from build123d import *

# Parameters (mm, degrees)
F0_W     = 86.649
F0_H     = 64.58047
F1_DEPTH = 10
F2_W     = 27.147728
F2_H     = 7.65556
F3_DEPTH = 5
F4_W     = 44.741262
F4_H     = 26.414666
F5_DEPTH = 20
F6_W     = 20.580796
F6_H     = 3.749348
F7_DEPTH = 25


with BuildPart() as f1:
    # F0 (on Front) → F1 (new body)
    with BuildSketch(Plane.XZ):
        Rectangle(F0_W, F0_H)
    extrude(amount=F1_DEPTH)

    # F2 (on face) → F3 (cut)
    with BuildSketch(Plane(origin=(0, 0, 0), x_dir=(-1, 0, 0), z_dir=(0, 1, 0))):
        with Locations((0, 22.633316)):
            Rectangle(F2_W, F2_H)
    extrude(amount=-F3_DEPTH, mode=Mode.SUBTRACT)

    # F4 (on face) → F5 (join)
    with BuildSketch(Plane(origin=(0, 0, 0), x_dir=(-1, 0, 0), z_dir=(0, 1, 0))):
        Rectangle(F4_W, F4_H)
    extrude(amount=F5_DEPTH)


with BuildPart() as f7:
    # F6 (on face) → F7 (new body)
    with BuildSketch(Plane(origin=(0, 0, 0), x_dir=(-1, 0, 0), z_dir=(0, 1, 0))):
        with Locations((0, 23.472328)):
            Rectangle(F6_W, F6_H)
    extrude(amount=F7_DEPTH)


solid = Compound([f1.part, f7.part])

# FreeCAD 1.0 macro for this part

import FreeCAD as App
import Part
import Sketcher
Q = App.Units.Quantity

doc = App.newDocument("Part")
body = doc.addObject("PartDesign::Body", "Body")

# Sketch on XZ plane
sketch1 = body.newObject("Sketcher::SketchObject", "Sketch")
sketch1.AttachmentSupport = (doc.getObject("XZ_Plane"), [""])
sketch1.MapMode = "FlatFace"
sketch1.addGeometry([
    Part.LineSegment(App.Vector(-43, 32, 0), App.Vector(-43, -32, 0)),
    Part.LineSegment(App.Vector(-43, -32, 0), App.Vector(43, -32, 0)),
    Part.LineSegment(App.Vector(43, -32, 0), App.Vector(43, 32, 0)),
    Part.LineSegment(App.Vector(43, 32, 0), App.Vector(-43, 32, 0)),
], False)
sketch1.addConstraint([
    Sketcher.Constraint("Coincident", 0, 2, 1, 1),
    Sketcher.Constraint("Coincident", 1, 2, 2, 1),
    Sketcher.Constraint("Coincident", 2, 2, 3, 1),
    Sketcher.Constraint("Coincident", 3, 2, 0, 1),
    Sketcher.Constraint("Vertical", 0),
    Sketcher.Constraint("Horizontal", 1),
    Sketcher.Constraint("Vertical", 2),
    Sketcher.Constraint("Horizontal", 3),
    Sketcher.Constraint("Symmetric", 0, 2, 2, 2, -1, 1),
    Sketcher.Constraint("DistanceX", 1, 1, 1, 2, Q("86.649 mm")),
    Sketcher.Constraint("DistanceY", 0, 2, 0, 1, Q("64.58047 mm")),
])
pad1 = body.newObject("PartDesign::Pad", "Pad")
pad1.Profile = sketch1
pad1.Length = 10

# Sketch on XZ plane
sketch2 = body.newObject("Sketcher::SketchObject", "Sketch001")
sketch2.AttachmentSupport = (doc.getObject("XZ_Plane"), [""])
sketch2.MapMode = "FlatFace"
sketch2.addGeometry([
    Part.LineSegment(App.Vector(14, 26, 0), App.Vector(14, 19, 0)),
    Part.LineSegment(App.Vector(14, 19, 0), App.Vector(-14, 19, 0)),
    Part.LineSegment(App.Vector(-14, 19, 0), App.Vector(-14, 26, 0)),
    Part.LineSegment(App.Vector(-14, 26, 0), App.Vector(14, 26, 0)),
], False)
sketch2.addConstraint([
    Sketcher.Constraint("Coincident", 0, 2, 1, 1),
    Sketcher.Constraint("Coincident", 1, 2, 2, 1),
    Sketcher.Constraint("Coincident", 2, 2, 3, 1),
    Sketcher.Constraint("Coincident", 3, 2, 0, 1),
    Sketcher.Constraint("Vertical", 0),
    Sketcher.Constraint("Horizontal", 1),
    Sketcher.Constraint("Vertical", 2),
    Sketcher.Constraint("Horizontal", 3),
    Sketcher.Constraint("DistanceX", 1, 2, 1, 1, Q("27.147728 mm")),
    Sketcher.Constraint("DistanceY", 0, 2, 0, 1, Q("7.65556 mm")),
    Sketcher.Constraint("DistanceX", -1, 1, 0, 2, Q("13.573864 mm")),
    Sketcher.Constraint("DistanceY", -1, 1, 0, 2, Q("18.805536 mm")),
])
pocket1 = body.newObject("PartDesign::Pocket", "Pocket")
pocket1.Profile = sketch2
pocket1.Length = 5
pocket1.Reversed = True

# Sketch on XZ plane
sketch3 = body.newObject("Sketcher::SketchObject", "Sketch002")
sketch3.AttachmentSupport = (doc.getObject("XZ_Plane"), [""])
sketch3.MapMode = "FlatFace"
sketch3.addGeometry([
    Part.LineSegment(App.Vector(22, 13, 0), App.Vector(22, -13, 0)),
    Part.LineSegment(App.Vector(22, -13, 0), App.Vector(-22, -13, 0)),
    Part.LineSegment(App.Vector(-22, -13, 0), App.Vector(-22, 13, 0)),
    Part.LineSegment(App.Vector(-22, 13, 0), App.Vector(22, 13, 0)),
], False)
sketch3.addConstraint([
    Sketcher.Constraint("Coincident", 0, 2, 1, 1),
    Sketcher.Constraint("Coincident", 1, 2, 2, 1),
    Sketcher.Constraint("Coincident", 2, 2, 3, 1),
    Sketcher.Constraint("Coincident", 3, 2, 0, 1),
    Sketcher.Constraint("Vertical", 0),
    Sketcher.Constraint("Horizontal", 1),
    Sketcher.Constraint("Vertical", 2),
    Sketcher.Constraint("Horizontal", 3),
    Sketcher.Constraint("Symmetric", 0, 2, 2, 2, -1, 1),
    Sketcher.Constraint("DistanceX", 1, 2, 1, 1, Q("44.741262 mm")),
    Sketcher.Constraint("DistanceY", 0, 2, 0, 1, Q("26.414666 mm")),
])
pad2 = body.newObject("PartDesign::Pad", "Pad001")
pad2.Profile = sketch3
pad2.Length = 20
pad2.Reversed = True
body2 = doc.addObject("PartDesign::Body", "Body001")

# Sketch on XZ plane
sketch4 = body2.newObject("Sketcher::SketchObject", "Sketch003")
sketch4.AttachmentSupport = (doc.getObject("XZ_Plane001"), [""])
sketch4.MapMode = "FlatFace"
sketch4.addGeometry([
    Part.LineSegment(App.Vector(10.3, 25.3, 0), App.Vector(10.3, 21.6, 0)),
    Part.LineSegment(App.Vector(10.3, 21.6, 0), App.Vector(-10.3, 21.6, 0)),
    Part.LineSegment(App.Vector(-10.3, 21.6, 0), App.Vector(-10.3, 25.3, 0)),
    Part.LineSegment(App.Vector(-10.3, 25.3, 0), App.Vector(10.3, 25.3, 0)),
], False)
sketch4.addConstraint([
    Sketcher.Constraint("Coincident", 0, 2, 1, 1),
    Sketcher.Constraint("Coincident", 1, 2, 2, 1),
    Sketcher.Constraint("Coincident", 2, 2, 3, 1),
    Sketcher.Constraint("Coincident", 3, 2, 0, 1),
    Sketcher.Constraint("Vertical", 0),
    Sketcher.Constraint("Horizontal", 1),
    Sketcher.Constraint("Vertical", 2),
    Sketcher.Constraint("Horizontal", 3),
    Sketcher.Constraint("DistanceY", -1, 1, 2, 2, Q("25.347002 mm")),
    Sketcher.Constraint("DistanceY", 0, 2, 0, 1, Q("3.749348 mm")),
    Sketcher.Constraint("DistanceX", 1, 2, 1, 1, Q("20.580796 mm")),
    Sketcher.Constraint("DistanceX", -1, 1, 0, 2, Q("10.290398 mm")),
])
pad3 = body2.newObject("PartDesign::Pad", "Pad002")
pad3.Profile = sketch4
pad3.Length = 25
pad3.Reversed = True

doc.recompute()
